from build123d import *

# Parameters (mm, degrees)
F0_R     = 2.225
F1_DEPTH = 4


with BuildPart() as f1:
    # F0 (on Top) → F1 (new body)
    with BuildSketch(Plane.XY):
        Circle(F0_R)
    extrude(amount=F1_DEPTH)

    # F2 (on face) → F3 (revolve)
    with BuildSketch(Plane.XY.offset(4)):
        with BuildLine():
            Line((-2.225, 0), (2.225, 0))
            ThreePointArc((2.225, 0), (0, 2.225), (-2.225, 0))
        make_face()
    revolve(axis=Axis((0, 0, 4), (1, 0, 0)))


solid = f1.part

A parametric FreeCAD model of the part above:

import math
import FreeCAD as App
import Part
import Sketcher

V = App.Vector
Q = App.Units.Quantity

doc = App.newDocument("Part")
body = doc.addObject("PartDesign::Body", "Body")

sketch1 = doc.addObject("Sketcher::SketchObject", "Sketch")
body.addObject(sketch1)
sketch1.AttachmentSupport = (doc.XY_Plane, [""])
sketch1.MapMode = "FlatFace"
sketch1.addGeometry(Part.Circle(V(0, 0, 0), V(0, 0, 1), 2.2), False)
sketch1.addConstraint([
    Sketcher.Constraint("Coincident", 0, 3, -1, 1),
    Sketcher.Constraint("Diameter", 0, Q("4.45 mm")),
])
pad1 = doc.addObject("PartDesign::Pad", "Pad")
body.addObject(pad1)
pad1.Profile = sketch1
pad1.Length = 4

sketch2 = doc.addObject("Sketcher::SketchObject", "Sketch001")
body.addObject(sketch2)
sketch2.AttachmentSupport = (doc.XY_Plane, [""])
sketch2.MapMode = "FlatFace"
sketch2.AttachmentOffset = App.Placement(V(0, 0, 4), App.Rotation())
sketch2.addGeometry([
    Part.LineSegment(V(-2.2, 0, 0), V(2.2, 0, 0)),
    Part.ArcOfCircle(Part.Circle(V(0, 0, 0), V(0, 0, 1), 2.2), math.radians(0), math.radians(180)),
], False)
sketch2.addConstraint([
    Sketcher.Constraint("Coincident", 0, 1, 1, 2),
    Sketcher.Constraint("Coincident", 1, 1, 0, 2),
    Sketcher.Constraint("Horizontal", 0),
    Sketcher.Constraint("Coincident", 1, 3, -1, 1),
    Sketcher.Constraint("PointOnObject", 0, 1, -1),
    Sketcher.Constraint("Radius", 1, Q("2.225 mm")),
])
revolution = doc.addObject("PartDesign::Revolution", "Revolution")
body.addObject(revolution)
revolution.Profile = sketch2
revolution.ReferenceAxis = (sketch2, ["H_Axis"])
revolution.Angle = 360

doc.recompute()
